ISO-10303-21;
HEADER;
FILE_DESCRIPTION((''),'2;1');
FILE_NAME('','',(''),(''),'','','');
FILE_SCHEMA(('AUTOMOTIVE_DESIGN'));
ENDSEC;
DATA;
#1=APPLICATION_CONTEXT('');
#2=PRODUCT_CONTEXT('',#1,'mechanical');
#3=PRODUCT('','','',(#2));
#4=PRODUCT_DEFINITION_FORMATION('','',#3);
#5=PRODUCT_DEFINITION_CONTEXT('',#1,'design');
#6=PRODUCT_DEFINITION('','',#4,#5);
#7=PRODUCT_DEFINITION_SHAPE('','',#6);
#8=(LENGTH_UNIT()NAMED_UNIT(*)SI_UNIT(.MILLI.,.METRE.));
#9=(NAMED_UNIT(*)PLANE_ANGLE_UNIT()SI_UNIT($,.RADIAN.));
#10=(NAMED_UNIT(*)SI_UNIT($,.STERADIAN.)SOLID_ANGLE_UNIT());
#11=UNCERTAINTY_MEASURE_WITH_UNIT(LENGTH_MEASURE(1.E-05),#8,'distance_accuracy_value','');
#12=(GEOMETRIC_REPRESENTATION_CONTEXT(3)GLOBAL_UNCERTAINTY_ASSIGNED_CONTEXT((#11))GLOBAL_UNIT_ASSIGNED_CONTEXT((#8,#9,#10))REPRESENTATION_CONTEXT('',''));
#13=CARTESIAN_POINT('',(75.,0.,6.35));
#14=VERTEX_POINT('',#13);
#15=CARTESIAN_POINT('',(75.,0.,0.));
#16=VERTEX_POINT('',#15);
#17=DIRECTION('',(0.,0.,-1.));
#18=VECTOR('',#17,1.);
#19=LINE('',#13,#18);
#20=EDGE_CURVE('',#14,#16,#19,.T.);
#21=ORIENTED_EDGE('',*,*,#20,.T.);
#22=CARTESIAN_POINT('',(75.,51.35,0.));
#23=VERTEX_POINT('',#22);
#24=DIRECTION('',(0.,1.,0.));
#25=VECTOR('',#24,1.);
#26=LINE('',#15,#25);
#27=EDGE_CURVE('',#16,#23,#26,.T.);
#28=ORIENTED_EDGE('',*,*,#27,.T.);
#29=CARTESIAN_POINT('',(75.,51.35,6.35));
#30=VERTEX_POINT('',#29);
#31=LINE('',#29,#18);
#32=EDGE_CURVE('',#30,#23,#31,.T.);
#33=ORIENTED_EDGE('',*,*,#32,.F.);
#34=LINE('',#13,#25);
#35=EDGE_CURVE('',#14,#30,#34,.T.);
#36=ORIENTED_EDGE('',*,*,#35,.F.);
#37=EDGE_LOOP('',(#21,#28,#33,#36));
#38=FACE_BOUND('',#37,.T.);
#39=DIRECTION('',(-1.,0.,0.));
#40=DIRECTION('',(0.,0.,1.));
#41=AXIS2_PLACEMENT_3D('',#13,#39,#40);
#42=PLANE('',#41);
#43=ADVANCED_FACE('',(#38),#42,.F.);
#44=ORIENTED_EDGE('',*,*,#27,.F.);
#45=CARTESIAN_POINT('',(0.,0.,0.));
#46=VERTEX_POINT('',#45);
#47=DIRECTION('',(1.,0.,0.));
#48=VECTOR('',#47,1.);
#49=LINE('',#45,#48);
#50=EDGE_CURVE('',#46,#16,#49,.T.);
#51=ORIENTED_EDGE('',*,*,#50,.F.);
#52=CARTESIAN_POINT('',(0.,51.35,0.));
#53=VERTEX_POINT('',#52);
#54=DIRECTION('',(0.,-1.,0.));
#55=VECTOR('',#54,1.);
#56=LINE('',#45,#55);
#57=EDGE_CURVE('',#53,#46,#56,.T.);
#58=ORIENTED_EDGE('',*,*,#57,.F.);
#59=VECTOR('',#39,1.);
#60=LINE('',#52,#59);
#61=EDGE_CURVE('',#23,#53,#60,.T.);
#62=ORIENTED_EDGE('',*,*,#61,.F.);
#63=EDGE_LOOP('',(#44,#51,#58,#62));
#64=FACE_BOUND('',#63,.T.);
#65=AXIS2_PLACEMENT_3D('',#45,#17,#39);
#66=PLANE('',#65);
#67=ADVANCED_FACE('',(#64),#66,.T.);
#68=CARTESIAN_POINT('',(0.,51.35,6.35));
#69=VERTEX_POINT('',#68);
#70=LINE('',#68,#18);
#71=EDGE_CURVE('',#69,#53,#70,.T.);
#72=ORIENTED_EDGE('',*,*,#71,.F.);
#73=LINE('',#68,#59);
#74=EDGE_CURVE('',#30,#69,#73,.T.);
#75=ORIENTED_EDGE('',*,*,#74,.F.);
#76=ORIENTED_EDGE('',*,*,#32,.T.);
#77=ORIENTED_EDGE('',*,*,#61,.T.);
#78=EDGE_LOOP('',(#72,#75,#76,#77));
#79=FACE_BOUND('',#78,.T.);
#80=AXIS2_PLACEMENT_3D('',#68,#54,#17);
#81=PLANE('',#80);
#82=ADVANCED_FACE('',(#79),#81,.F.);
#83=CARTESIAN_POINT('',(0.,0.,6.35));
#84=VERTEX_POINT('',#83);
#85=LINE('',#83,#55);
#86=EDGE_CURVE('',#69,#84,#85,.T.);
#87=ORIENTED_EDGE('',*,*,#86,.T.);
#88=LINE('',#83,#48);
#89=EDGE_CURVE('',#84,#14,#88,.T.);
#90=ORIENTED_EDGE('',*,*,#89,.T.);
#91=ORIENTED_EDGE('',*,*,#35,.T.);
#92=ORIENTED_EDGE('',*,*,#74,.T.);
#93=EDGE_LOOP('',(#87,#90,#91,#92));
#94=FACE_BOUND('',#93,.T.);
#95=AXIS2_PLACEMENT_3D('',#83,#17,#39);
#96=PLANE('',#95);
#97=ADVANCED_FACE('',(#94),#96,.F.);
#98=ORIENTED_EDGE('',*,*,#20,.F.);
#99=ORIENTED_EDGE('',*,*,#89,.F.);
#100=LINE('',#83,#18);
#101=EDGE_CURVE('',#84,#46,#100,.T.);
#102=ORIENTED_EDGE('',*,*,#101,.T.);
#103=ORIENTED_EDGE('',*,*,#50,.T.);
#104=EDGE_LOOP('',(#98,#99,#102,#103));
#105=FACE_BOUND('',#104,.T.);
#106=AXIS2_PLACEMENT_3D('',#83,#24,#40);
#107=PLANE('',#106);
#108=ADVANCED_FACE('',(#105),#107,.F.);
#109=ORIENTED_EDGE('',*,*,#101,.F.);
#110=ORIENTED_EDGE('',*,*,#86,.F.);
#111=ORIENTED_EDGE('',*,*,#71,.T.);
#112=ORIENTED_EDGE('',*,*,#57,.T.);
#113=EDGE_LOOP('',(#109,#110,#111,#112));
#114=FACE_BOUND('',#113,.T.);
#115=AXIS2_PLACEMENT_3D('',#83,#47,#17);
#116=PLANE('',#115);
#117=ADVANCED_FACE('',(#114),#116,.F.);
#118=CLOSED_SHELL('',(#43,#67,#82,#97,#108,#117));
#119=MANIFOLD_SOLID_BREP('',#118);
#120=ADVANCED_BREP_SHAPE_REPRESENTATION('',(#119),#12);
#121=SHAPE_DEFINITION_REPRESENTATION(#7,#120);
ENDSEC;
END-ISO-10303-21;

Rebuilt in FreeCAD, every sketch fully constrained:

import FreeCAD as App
import Part
import Sketcher

V = App.Vector

doc = App.newDocument("Part")
body = doc.addObject("PartDesign::Body", "Body")

# Sketch on XY plane
sketch1 = doc.addObject("Sketcher::SketchObject", "Sketch")
body.addObject(sketch1)
sketch1.AttachmentSupport = (doc.XY_Plane, [""])
sketch1.MapMode = "FlatFace"
sketch1.addGeometry([
    Part.LineSegment(V(0, 51, 0), V(0, 0, 0)),
    Part.LineSegment(V(0, 0, 0), V(75, 0, 0)),
    Part.LineSegment(V(75, 0, 0), V(75, 51, 0)),
    Part.LineSegment(V(75, 51, 0), V(0, 51, 0)),
], False)
sketch1.addConstraint([
    Sketcher.Constraint("Coincident", 0, 2, 1, 1),
    Sketcher.Constraint("Coincident", 1, 2, 2, 1),
    Sketcher.Constraint("Coincident", 2, 2, 3, 1),
    Sketcher.Constraint("Coincident", 3, 2, 0, 1),
    Sketcher.Constraint("Vertical", 0),
    Sketcher.Constraint("Horizontal", 1),
    Sketcher.Constraint("Vertical", 2),
    Sketcher.Constraint("Horizontal", 3),
    Sketcher.Constraint("Coincident", 0, 2, -1, 1),
    Sketcher.Constraint("DistanceX", 1, 1, 1, 2, 75.0),
    Sketcher.Constraint("DistanceY", 0, 2, 0, 1, 51.35),
])
pad1 = doc.addObject("PartDesign::Pad", "Pad")
body.addObject(pad1)
pad1.Profile = sketch1
pad1.Length = 6.35

doc.recompute()
